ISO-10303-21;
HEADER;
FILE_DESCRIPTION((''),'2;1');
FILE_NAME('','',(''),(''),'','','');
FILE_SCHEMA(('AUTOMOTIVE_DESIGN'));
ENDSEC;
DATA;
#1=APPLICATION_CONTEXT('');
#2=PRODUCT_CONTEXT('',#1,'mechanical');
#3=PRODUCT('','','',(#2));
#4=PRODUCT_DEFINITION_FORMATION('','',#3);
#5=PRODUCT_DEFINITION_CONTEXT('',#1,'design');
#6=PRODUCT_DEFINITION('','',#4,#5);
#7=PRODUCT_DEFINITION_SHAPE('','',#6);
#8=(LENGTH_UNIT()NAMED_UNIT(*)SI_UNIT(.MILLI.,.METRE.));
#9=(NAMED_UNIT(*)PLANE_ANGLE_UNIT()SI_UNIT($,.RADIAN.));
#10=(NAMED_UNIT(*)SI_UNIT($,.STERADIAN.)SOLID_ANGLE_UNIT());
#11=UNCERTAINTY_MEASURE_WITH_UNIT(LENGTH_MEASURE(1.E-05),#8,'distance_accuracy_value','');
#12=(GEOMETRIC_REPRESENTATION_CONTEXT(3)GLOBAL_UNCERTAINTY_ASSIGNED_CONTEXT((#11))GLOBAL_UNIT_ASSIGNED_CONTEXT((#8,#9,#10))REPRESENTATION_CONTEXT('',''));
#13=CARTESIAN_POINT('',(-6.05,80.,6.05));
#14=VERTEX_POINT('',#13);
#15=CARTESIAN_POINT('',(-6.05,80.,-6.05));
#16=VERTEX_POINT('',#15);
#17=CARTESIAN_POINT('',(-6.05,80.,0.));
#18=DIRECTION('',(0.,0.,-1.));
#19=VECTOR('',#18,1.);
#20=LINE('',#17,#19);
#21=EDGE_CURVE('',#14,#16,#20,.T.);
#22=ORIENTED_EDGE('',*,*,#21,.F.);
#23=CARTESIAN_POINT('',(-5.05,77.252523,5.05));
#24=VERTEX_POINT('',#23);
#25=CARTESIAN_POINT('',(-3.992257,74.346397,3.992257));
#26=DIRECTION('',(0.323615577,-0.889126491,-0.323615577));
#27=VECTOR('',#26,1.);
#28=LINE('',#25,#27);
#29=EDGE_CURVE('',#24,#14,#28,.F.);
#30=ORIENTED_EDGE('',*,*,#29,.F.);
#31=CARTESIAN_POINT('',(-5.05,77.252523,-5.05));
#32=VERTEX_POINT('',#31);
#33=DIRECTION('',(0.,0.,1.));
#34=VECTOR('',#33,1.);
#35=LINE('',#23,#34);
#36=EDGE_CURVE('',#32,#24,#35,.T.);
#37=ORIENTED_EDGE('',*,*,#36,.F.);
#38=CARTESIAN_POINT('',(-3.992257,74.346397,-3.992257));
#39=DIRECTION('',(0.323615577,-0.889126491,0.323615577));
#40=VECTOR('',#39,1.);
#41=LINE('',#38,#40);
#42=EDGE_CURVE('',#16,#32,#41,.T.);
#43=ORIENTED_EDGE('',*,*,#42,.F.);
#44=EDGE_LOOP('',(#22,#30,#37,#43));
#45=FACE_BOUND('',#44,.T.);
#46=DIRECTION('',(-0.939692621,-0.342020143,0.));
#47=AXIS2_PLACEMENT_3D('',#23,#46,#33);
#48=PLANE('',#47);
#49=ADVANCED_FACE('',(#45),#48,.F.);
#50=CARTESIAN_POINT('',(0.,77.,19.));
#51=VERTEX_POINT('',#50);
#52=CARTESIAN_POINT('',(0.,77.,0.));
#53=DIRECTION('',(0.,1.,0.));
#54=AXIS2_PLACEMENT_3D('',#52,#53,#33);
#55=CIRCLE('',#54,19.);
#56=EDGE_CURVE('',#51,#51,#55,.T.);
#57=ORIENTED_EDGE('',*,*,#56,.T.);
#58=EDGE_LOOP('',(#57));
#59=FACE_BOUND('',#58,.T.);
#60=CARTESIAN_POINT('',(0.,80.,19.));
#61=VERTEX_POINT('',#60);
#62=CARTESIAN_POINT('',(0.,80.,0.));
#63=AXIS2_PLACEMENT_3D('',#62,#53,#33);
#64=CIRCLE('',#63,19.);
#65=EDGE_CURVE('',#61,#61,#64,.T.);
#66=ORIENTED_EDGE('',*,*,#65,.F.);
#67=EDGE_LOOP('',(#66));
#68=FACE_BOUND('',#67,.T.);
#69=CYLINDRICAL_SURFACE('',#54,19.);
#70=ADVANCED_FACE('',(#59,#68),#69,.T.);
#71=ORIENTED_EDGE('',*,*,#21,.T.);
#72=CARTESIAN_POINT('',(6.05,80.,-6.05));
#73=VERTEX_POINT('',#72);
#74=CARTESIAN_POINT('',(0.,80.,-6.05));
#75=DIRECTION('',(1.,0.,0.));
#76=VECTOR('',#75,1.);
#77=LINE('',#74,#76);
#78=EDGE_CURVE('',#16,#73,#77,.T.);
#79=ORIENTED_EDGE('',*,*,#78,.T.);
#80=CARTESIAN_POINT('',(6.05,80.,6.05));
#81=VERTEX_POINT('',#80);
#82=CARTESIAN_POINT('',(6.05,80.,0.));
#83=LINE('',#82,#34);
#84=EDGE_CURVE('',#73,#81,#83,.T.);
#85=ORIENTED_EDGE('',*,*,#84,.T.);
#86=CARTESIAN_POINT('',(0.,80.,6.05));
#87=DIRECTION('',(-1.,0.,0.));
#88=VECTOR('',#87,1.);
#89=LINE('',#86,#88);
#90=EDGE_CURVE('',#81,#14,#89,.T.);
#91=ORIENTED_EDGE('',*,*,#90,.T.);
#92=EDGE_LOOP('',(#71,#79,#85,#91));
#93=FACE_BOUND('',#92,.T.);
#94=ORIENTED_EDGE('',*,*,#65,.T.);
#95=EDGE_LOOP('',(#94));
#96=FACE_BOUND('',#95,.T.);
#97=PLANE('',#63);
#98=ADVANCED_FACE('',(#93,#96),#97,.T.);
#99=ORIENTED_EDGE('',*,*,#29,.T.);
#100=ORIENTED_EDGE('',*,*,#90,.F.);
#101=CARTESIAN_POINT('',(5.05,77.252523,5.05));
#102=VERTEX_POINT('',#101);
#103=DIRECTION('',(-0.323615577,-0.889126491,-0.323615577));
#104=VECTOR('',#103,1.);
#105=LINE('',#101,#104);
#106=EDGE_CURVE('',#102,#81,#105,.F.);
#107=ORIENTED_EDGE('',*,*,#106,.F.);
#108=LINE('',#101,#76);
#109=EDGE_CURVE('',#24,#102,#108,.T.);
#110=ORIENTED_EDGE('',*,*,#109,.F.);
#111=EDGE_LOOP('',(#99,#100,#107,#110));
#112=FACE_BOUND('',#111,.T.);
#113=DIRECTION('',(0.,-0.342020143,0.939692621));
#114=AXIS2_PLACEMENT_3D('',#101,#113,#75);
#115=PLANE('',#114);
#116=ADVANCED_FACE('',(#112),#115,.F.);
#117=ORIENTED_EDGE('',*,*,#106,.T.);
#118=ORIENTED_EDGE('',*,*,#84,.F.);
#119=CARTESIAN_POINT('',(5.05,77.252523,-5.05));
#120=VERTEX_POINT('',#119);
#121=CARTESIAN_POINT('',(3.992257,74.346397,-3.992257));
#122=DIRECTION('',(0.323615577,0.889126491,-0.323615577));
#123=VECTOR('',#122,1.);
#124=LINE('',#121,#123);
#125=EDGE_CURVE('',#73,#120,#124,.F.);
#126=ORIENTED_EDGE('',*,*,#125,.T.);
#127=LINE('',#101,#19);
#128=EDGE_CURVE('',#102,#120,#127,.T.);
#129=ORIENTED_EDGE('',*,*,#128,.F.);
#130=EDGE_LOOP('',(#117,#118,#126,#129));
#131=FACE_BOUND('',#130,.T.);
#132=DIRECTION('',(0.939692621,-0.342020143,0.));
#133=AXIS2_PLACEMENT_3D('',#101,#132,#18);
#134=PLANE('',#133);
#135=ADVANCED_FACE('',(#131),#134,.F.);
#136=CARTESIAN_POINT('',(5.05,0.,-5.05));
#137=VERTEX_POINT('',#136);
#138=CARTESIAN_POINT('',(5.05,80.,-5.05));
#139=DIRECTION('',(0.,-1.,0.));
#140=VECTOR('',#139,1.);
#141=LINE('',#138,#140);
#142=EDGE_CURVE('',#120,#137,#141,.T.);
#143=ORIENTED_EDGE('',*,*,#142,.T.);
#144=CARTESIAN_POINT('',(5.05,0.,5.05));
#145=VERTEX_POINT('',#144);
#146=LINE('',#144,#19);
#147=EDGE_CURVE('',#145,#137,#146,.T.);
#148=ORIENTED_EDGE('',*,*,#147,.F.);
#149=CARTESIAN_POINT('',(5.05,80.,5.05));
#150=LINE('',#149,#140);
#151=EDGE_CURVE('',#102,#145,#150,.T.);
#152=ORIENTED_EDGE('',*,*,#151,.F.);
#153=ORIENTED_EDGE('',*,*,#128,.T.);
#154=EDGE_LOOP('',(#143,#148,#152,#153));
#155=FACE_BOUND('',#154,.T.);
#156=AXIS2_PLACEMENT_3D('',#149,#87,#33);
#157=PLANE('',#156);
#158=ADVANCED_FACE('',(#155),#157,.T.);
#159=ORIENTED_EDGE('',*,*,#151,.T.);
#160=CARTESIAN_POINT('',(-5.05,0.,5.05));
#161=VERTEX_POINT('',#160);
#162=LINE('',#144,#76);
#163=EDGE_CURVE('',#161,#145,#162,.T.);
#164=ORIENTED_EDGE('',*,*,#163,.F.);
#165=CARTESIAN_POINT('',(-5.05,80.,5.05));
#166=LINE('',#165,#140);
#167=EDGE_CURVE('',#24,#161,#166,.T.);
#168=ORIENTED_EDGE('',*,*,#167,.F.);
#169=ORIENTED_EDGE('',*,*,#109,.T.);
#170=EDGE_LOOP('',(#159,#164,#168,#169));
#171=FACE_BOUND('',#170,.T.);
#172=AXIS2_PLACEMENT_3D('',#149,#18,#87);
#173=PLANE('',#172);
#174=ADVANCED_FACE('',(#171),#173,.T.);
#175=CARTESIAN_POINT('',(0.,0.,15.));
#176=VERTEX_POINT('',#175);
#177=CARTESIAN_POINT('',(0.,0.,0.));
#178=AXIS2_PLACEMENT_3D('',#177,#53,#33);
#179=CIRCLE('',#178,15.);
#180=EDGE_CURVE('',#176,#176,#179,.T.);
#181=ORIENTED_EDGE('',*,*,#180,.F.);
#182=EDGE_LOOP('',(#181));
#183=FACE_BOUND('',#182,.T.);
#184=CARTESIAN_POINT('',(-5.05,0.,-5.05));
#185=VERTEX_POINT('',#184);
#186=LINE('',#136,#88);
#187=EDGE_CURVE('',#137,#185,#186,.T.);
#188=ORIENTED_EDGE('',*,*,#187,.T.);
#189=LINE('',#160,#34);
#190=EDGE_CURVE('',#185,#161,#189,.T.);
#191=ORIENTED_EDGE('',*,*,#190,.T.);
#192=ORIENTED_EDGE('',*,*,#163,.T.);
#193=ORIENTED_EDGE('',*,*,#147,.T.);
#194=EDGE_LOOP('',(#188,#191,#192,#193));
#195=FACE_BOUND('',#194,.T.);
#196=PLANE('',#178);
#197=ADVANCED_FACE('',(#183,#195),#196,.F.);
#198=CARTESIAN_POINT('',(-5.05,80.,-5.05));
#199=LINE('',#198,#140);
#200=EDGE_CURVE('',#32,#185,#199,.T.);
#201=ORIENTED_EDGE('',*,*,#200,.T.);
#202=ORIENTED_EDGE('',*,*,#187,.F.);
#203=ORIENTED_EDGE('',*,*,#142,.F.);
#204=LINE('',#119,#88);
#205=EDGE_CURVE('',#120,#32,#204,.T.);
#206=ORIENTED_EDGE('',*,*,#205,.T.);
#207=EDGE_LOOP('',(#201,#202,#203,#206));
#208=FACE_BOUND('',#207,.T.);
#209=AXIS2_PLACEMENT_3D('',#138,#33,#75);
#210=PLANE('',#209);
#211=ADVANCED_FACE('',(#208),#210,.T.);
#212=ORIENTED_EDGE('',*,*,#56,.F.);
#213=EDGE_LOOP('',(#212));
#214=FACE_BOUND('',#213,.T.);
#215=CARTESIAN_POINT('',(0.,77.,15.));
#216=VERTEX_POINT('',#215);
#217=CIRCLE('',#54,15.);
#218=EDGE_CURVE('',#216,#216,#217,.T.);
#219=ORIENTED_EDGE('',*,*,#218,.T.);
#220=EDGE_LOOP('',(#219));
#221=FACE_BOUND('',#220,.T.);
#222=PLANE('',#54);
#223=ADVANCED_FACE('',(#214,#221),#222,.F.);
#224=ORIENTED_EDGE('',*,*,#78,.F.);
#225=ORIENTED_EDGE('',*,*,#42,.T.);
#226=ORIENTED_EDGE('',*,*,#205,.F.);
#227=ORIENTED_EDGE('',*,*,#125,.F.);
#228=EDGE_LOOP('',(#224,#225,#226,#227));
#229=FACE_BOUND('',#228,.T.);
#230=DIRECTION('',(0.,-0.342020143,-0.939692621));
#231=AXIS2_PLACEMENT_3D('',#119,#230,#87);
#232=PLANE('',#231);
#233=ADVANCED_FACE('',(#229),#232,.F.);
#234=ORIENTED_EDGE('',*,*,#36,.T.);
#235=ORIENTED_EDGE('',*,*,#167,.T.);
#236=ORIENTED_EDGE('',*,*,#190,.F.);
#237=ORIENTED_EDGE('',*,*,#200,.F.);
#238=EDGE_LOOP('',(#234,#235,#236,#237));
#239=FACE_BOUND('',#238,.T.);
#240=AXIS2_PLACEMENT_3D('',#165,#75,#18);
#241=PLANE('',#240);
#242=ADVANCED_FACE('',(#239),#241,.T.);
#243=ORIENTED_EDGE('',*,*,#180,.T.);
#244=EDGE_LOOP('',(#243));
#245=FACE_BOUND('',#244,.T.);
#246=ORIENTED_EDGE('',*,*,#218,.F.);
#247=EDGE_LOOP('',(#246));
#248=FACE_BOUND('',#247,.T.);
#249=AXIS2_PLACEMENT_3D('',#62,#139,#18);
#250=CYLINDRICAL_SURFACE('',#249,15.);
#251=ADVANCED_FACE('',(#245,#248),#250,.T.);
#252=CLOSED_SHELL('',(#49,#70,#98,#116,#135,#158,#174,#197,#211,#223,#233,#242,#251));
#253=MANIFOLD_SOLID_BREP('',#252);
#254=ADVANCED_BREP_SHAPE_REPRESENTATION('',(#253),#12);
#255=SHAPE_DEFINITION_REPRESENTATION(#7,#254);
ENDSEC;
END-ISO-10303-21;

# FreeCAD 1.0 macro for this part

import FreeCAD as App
import Part
import Sketcher
Q = App.Units.Quantity


def edges_at(feature, points):
    """Names of the edges that pass closest to the given points."""
    edges = feature.Shape.Edges
    near = lambda p: min(range(len(edges)), key=lambda i: edges[i].distToShape(Part.Vertex(*p))[0])
    return sorted({f"Edge{near(p) + 1}" for p in points})

doc = App.newDocument("Part")
body = doc.addObject("PartDesign::Body", "Body")

# Sketch on XZ plane
sketch1 = doc.addObject("Sketcher::SketchObject", "Sketch")
body.addObject(sketch1)
sketch1.AttachmentSupport = (doc.XZ_Plane, [""])
sketch1.MapMode = "FlatFace"
sketch1.addGeometry(Part.Circle(App.Vector(0, 0, 0), App.Vector(0, 0, 1), 15), False)
sketch1.addGeometry(Part.LineSegment(App.Vector(5, 5, 0), App.Vector(-5, 5, 0)), False)
sketch1.addGeometry(Part.LineSegment(App.Vector(-5, 5, 0), App.Vector(-5, -5, 0)), False)
sketch1.addGeometry(Part.LineSegment(App.Vector(-5, -5, 0), App.Vector(5, -5, 0)), False)
sketch1.addGeometry(Part.LineSegment(App.Vector(5, -5, 0), App.Vector(5, 5, 0)), False)
sketch1.addConstraint(Sketcher.Constraint("Coincident", 1, 2, 2, 1))
sketch1.addConstraint(Sketcher.Constraint("Coincident", 2, 2, 3, 1))
sketch1.addConstraint(Sketcher.Constraint("Coincident", 3, 2, 4, 1))
sketch1.addConstraint(Sketcher.Constraint("Coincident", 4, 2, 1, 1))
sketch1.addConstraint(Sketcher.Constraint("Horizontal", 1))
sketch1.addConstraint(Sketcher.Constraint("Vertical", 2))
sketch1.addConstraint(Sketcher.Constraint("Horizontal", 3))
sketch1.addConstraint(Sketcher.Constraint("Vertical", 4))
sketch1.addConstraint(Sketcher.Constraint("Coincident", 0, 3, -1, 1))
sketch1.addConstraint(Sketcher.Constraint("Symmetric", 1, 2, 3, 2, -1, 1))
sketch1.addConstraint(Sketcher.Constraint("Equal", 3, 2))
sketch1.addConstraint(Sketcher.Constraint("Diameter", 0, Q("30 mm")))
sketch1.addConstraint(Sketcher.Constraint("DistanceX", 1, 2, 1, 1, Q("10.1 mm")))
pad1 = doc.addObject("PartDesign::Pad", "Pad")
body.addObject(pad1)
pad1.Profile = sketch1
pad1.Length = 80
pad1.Reversed = True

# Sketch on XZ plane
sketch2 = doc.addObject("Sketcher::SketchObject", "Sketch001")
body.addObject(sketch2)
sketch2.AttachmentSupport = (doc.XZ_Plane, [""])
sketch2.MapMode = "FlatFace"
sketch2.AttachmentOffset = App.Placement(App.Vector(0, 0, -80), App.Rotation())
sketch2.addGeometry(Part.Circle(App.Vector(0, 0, 0), App.Vector(0, 0, 1), 19), False)
sketch2.addGeometry(Part.LineSegment(App.Vector(5, 5, 0), App.Vector(-5, 5, 0)), False)
sketch2.addGeometry(Part.LineSegment(App.Vector(-5, 5, 0), App.Vector(-5, -5, 0)), False)
sketch2.addGeometry(Part.LineSegment(App.Vector(-5, -5, 0), App.Vector(5, -5, 0)), False)
sketch2.addGeometry(Part.LineSegment(App.Vector(5, -5, 0), App.Vector(5, 5, 0)), False)
sketch2.addConstraint(Sketcher.Constraint("Coincident", 1, 2, 2, 1))
sketch2.addConstraint(Sketcher.Constraint("Coincident", 2, 2, 3, 1))
sketch2.addConstraint(Sketcher.Constraint("Coincident", 3, 2, 4, 1))
sketch2.addConstraint(Sketcher.Constraint("Coincident", 4, 2, 1, 1))
sketch2.addConstraint(Sketcher.Constraint("Horizontal", 1))
sketch2.addConstraint(Sketcher.Constraint("Vertical", 2))
sketch2.addConstraint(Sketcher.Constraint("Horizontal", 3))
sketch2.addConstraint(Sketcher.Constraint("Vertical", 4))
sketch2.addConstraint(Sketcher.Constraint("Coincident", 0, 3, -1, 1))
sketch2.addConstraint(Sketcher.Constraint("Symmetric", 1, 2, 3, 2, -1, 1))
sketch2.addConstraint(Sketcher.Constraint("Equal", 3, 2))
sketch2.addConstraint(Sketcher.Constraint("Diameter", 0, Q("38 mm")))
sketch2.addConstraint(Sketcher.Constraint("DistanceX", 1, 2, 1, 1, Q("10.1 mm")))
pad2 = doc.addObject("PartDesign::Pad", "Pad001")
body.addObject(pad2)
pad2.Profile = sketch2
pad2.Length = 3
doc.recompute()

chamfer = doc.addObject("PartDesign::Chamfer", "Chamfer")
body.addObject(chamfer)
chamfer.Base = (pad2, edges_at(pad2, [
    (0, 80, -5.05),
    (-5.05, 80, 0),
    (0, 80, 5.05),
    (5.05, 80, 0),
]))
chamfer.ChamferType = "Two distances"
chamfer.Size = 1
chamfer.Size2 = 2.747477
chamfer.FlipDirection = True

doc.recompute()
